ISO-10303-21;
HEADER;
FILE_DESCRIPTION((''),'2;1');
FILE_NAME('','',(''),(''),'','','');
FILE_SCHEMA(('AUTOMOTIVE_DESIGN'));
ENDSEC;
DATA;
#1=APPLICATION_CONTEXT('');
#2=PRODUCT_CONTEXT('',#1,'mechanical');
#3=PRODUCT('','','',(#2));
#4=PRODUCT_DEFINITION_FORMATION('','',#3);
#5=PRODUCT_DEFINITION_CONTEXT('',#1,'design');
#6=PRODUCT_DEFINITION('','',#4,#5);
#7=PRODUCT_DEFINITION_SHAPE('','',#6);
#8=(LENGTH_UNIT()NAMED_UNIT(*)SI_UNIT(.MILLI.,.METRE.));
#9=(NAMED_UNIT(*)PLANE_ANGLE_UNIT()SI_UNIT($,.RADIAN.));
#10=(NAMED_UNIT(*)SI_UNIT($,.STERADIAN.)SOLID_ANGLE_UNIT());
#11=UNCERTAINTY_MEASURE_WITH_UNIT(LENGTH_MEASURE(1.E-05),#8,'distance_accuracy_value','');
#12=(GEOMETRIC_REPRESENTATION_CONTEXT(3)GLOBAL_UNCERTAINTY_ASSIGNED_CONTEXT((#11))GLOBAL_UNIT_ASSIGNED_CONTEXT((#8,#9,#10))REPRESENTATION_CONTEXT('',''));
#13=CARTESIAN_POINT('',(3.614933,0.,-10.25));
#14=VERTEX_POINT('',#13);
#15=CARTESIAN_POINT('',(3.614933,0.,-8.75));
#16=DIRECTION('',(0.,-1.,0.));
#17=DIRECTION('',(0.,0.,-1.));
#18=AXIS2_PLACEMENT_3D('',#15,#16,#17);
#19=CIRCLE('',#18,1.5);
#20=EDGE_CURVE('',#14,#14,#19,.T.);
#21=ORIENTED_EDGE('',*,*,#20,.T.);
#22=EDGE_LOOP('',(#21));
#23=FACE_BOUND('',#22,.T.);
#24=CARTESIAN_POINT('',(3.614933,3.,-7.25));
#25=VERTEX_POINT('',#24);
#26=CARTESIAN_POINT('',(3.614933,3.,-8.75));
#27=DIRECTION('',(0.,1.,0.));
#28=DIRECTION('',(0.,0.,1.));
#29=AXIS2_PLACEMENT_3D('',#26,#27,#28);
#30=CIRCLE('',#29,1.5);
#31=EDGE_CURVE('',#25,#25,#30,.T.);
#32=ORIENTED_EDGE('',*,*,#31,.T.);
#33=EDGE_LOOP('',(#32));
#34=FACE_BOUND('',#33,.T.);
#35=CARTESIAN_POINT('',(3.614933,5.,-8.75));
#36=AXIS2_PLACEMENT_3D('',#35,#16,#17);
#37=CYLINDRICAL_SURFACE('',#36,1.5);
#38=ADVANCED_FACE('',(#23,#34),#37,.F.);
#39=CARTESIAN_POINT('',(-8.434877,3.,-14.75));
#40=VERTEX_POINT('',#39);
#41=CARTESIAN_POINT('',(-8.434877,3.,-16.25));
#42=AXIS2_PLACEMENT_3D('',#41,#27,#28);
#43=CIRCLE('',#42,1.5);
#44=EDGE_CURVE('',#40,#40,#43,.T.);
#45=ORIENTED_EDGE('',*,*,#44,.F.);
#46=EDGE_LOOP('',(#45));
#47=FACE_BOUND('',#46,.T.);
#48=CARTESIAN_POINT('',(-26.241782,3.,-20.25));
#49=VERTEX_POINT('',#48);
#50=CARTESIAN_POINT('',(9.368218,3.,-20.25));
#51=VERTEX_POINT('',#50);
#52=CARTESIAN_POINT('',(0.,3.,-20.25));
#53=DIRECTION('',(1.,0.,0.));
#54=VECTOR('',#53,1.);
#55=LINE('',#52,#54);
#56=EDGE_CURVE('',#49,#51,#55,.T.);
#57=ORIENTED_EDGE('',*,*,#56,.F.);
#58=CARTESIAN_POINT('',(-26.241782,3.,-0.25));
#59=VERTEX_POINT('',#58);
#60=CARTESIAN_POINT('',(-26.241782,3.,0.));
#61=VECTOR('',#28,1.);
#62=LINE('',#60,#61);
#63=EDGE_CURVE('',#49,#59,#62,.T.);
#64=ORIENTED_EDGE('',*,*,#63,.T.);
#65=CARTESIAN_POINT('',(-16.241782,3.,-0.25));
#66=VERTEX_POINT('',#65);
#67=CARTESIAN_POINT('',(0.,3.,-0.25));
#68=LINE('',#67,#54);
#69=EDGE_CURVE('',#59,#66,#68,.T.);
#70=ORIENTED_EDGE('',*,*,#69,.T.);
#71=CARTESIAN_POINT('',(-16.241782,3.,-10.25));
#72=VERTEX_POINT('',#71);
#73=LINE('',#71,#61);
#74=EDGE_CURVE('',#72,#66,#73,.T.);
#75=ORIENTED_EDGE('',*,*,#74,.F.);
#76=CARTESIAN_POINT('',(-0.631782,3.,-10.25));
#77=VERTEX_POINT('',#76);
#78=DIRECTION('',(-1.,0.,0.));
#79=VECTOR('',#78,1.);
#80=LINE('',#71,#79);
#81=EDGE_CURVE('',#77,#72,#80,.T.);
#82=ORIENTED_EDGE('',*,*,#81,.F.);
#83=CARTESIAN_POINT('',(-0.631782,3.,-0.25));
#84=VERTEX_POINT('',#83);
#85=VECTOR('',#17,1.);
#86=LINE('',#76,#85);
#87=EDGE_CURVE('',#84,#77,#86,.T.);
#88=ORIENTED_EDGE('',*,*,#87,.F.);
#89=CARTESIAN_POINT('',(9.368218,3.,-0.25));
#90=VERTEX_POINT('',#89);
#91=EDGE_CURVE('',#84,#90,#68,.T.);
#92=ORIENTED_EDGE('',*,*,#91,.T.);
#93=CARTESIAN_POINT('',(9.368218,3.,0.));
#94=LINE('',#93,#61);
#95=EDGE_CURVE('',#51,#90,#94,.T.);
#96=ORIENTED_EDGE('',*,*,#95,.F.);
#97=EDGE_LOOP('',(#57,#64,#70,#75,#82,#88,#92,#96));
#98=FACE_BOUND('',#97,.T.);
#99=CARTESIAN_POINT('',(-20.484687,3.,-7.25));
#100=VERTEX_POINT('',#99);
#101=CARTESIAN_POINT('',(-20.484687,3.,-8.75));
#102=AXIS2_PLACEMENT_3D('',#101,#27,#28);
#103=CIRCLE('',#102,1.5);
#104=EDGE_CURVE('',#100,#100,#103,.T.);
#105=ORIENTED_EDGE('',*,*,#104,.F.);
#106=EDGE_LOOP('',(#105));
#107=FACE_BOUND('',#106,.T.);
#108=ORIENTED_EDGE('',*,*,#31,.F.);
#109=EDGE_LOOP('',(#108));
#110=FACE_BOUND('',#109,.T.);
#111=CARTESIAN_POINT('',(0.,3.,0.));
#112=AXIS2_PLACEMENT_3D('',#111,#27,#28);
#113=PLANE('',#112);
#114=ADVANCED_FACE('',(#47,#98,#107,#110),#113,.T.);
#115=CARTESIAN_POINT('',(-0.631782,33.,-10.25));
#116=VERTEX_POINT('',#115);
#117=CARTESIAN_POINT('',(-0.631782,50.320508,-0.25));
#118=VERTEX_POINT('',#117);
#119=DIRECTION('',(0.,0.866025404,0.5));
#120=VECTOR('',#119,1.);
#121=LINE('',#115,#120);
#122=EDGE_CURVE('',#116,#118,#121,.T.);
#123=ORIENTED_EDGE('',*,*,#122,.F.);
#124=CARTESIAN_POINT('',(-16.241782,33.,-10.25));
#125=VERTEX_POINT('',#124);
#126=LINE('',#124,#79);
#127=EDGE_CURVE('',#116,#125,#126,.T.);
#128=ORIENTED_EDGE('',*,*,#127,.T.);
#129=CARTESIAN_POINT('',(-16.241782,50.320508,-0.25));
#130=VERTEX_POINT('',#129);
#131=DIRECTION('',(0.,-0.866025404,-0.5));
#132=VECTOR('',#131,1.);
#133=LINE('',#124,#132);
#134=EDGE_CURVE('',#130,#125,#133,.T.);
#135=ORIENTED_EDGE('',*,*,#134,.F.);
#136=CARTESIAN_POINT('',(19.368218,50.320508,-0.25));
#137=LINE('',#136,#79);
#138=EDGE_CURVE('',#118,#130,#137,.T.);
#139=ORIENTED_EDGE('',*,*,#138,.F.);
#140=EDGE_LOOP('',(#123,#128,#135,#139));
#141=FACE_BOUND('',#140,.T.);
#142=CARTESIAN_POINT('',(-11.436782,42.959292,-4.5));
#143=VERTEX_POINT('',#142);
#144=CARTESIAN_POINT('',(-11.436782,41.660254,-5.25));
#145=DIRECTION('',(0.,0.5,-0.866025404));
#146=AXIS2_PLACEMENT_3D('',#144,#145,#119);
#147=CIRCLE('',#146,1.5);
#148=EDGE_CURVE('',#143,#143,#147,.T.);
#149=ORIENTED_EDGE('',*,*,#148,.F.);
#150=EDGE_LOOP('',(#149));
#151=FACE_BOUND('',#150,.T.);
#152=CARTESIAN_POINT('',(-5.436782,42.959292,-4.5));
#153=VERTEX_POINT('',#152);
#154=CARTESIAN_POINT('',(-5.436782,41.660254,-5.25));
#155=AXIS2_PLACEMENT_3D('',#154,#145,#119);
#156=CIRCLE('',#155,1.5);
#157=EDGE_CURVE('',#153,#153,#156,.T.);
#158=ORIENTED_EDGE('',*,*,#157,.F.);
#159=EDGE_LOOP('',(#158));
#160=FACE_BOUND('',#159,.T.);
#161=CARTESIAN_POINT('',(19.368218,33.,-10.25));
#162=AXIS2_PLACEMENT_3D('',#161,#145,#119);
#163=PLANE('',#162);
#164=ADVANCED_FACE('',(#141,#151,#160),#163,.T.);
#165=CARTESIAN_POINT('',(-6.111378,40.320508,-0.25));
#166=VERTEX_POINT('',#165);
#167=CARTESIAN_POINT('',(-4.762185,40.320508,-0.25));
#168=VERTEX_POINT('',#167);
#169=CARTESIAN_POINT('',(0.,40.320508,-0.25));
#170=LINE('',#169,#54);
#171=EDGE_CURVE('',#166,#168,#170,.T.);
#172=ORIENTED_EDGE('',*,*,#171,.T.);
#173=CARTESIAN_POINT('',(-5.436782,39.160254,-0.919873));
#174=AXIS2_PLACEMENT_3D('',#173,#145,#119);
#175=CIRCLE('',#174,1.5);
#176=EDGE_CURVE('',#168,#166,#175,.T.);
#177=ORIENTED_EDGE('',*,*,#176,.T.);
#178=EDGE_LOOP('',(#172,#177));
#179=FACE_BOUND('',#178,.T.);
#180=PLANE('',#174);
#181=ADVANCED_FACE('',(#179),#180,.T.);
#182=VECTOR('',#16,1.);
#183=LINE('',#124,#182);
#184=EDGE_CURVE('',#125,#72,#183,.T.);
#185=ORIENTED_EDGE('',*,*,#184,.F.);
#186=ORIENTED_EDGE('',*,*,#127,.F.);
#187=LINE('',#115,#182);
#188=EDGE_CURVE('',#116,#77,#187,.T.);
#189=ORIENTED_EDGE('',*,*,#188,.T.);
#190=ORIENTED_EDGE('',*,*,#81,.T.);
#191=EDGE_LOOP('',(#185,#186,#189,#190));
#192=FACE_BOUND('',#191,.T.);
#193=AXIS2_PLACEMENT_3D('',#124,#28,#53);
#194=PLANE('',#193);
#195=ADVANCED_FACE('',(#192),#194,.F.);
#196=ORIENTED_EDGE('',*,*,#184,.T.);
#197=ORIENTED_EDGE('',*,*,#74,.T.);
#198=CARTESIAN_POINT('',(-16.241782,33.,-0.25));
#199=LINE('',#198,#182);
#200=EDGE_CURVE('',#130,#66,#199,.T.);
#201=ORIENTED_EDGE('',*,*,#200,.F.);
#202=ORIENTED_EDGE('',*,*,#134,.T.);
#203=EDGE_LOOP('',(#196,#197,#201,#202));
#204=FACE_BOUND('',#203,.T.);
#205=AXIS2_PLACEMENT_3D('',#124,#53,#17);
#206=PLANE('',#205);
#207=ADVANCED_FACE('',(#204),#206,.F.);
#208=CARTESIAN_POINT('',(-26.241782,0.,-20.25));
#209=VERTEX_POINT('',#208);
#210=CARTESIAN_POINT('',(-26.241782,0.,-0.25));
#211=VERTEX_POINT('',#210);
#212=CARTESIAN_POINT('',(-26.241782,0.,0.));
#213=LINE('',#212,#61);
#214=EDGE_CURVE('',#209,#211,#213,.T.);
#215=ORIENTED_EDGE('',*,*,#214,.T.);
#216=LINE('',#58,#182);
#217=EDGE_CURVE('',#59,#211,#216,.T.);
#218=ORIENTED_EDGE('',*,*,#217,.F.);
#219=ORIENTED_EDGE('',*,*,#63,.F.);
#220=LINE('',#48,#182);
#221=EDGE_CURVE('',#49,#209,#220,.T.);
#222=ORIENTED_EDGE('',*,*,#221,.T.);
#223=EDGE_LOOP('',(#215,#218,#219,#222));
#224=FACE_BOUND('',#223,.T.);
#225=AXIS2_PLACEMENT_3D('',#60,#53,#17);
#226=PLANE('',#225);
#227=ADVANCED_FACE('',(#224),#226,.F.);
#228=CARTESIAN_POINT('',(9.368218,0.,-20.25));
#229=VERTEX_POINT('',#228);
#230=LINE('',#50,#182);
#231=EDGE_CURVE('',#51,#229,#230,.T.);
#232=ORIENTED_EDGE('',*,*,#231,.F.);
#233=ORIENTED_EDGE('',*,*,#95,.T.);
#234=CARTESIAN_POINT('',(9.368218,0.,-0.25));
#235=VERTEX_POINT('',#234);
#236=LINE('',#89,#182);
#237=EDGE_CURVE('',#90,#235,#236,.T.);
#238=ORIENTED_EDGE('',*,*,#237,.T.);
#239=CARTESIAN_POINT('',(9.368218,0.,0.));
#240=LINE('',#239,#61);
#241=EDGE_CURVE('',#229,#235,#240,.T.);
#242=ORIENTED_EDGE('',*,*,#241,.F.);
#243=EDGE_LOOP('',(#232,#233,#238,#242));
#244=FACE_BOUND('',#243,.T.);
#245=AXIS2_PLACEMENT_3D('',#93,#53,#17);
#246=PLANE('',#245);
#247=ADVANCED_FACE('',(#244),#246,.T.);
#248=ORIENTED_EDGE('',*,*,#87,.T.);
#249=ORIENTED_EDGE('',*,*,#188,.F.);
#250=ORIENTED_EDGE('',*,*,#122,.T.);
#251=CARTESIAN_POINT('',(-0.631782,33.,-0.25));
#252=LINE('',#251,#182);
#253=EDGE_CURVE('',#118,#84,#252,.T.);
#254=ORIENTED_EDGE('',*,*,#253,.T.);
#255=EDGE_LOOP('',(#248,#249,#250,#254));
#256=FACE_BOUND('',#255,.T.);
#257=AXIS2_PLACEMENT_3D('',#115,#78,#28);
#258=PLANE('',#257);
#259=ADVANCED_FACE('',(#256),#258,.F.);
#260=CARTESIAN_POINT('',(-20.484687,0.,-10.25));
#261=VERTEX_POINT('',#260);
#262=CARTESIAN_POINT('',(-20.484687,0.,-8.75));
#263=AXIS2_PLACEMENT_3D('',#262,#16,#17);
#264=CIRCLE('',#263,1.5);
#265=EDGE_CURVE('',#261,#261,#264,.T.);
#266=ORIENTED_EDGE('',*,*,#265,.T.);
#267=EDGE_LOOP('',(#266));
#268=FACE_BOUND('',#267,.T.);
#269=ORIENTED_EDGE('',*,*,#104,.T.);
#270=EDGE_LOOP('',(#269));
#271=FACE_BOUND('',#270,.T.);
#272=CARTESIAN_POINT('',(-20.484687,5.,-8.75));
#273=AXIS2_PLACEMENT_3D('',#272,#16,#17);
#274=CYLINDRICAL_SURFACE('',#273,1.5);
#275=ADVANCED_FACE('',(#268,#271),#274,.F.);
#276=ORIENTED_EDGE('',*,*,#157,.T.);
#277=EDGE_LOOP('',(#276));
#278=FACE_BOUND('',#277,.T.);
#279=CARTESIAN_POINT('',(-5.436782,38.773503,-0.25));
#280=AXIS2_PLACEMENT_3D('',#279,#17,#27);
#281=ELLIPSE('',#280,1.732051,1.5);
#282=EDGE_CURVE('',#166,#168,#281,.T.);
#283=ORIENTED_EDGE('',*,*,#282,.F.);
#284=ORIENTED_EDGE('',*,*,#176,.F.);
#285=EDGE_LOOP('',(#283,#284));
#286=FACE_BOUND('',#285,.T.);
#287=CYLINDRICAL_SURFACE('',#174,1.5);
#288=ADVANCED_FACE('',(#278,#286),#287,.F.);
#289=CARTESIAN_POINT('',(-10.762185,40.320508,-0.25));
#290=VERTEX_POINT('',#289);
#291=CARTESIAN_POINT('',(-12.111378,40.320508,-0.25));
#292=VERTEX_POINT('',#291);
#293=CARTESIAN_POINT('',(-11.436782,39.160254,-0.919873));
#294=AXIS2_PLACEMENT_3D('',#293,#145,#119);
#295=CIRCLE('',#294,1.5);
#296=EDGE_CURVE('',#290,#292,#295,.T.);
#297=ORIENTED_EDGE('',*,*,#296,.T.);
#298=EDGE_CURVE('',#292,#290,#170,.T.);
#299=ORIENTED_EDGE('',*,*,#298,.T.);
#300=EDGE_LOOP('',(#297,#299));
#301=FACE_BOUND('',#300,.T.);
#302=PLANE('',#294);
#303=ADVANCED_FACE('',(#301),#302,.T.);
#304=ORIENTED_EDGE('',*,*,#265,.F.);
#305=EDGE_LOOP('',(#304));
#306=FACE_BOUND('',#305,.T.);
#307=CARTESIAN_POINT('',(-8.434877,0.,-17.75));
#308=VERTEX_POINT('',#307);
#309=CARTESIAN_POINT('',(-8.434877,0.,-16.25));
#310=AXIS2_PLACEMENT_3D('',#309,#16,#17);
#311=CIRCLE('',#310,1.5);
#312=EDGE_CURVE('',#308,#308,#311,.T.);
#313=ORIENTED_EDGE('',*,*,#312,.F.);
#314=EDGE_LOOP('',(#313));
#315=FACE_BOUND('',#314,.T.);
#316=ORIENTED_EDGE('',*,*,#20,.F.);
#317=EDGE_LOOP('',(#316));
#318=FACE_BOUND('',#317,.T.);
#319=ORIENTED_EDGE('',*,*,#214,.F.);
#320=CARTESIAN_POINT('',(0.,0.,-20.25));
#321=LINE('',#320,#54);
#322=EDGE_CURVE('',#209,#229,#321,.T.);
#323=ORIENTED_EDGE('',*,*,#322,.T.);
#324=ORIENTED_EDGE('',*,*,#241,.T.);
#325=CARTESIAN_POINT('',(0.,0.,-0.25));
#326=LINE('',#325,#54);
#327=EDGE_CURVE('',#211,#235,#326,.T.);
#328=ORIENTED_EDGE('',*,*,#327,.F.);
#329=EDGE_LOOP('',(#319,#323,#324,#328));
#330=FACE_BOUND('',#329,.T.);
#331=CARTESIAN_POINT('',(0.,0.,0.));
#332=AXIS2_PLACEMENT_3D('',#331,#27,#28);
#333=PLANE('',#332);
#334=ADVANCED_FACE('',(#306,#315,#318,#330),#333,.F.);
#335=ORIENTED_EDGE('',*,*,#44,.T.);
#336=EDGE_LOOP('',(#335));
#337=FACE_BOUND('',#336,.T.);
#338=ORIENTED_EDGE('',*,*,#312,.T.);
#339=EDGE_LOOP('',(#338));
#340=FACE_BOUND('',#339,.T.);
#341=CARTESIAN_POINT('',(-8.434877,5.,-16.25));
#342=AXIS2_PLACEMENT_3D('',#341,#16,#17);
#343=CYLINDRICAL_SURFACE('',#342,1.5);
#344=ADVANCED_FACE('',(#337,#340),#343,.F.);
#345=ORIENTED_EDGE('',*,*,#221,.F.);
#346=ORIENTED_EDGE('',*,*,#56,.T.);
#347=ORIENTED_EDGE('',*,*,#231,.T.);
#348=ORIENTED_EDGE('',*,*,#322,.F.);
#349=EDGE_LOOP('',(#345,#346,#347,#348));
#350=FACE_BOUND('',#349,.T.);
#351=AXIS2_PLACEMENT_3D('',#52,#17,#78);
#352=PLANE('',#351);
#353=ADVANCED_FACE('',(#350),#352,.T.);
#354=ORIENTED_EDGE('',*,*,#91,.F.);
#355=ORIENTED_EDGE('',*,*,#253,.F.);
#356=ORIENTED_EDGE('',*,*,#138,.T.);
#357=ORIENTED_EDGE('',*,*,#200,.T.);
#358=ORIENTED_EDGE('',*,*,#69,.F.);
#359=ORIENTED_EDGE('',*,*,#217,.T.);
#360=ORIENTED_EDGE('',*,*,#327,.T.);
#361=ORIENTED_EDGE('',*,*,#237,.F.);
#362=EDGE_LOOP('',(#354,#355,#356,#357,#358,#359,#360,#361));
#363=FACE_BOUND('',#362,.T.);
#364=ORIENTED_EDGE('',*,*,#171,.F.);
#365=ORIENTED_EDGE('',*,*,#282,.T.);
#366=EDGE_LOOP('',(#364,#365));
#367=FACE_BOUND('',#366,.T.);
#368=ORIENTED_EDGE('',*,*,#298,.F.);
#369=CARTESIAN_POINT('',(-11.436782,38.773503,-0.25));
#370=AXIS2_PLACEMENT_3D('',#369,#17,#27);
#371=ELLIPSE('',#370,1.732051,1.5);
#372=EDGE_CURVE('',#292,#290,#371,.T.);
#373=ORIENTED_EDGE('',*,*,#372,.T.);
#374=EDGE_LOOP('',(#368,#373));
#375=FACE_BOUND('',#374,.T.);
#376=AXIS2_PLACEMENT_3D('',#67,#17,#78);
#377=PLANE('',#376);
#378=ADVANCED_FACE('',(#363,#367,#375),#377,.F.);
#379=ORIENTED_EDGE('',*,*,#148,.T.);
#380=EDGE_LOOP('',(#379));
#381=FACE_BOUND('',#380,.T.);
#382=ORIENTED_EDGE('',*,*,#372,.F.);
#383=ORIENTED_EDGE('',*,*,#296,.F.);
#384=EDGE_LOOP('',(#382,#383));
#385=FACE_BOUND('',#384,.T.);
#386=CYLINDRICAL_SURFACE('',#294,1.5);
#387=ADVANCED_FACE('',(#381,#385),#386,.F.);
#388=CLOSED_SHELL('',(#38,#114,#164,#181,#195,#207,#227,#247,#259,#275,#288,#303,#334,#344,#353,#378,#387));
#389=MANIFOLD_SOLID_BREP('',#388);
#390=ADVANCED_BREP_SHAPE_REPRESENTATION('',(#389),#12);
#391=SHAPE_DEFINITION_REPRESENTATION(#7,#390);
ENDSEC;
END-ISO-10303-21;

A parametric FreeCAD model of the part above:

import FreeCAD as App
import Part
import Sketcher
Q = App.Units.Quantity


def add_polygon(sketch, points):
    """Adds a closed chain of lines whose ends are joined by coincident constraints."""
    first, n = sketch.GeometryCount, len(points)
    for a, b in zip(points, points[1:] + points[:1]):
        sketch.addGeometry(Part.LineSegment(App.Vector(*a, 0), App.Vector(*b, 0)), False)
    for i in range(n):
        sketch.addConstraint(Sketcher.Constraint("Coincident", first + i, 2, first + (i + 1) % n, 1))

doc = App.newDocument("Part")
body = doc.addObject("PartDesign::Body", "Body")

# Sketch on XZ plane
sketch1 = doc.addObject("Sketcher::SketchObject", "Sketch")
body.addObject(sketch1)
sketch1.AttachmentSupport = (doc.XZ_Plane, [""])
sketch1.MapMode = "FlatFace"
add_polygon(sketch1, [(-26, -20), (-26, 0), (9, 0), (9, -20)])  # lines 0-3
sketch1.addConstraint(Sketcher.Constraint("Vertical", 0))
sketch1.addConstraint(Sketcher.Constraint("Horizontal", 1))
sketch1.addConstraint(Sketcher.Constraint("Vertical", 2))
sketch1.addConstraint(Sketcher.Constraint("Horizontal", 3))
sketch1.addConstraint(Sketcher.Constraint("DistanceY", 0, 1, 0, 2, Q("20 mm")))
sketch1.addConstraint(Sketcher.Constraint("DistanceX", 1, 1, 1, 2, Q("35.61 mm")))
sketch1.addConstraint(Sketcher.Constraint("DistanceY", 0, 2, -1, 1, Q("0.25 mm")))
sketch1.addConstraint(Sketcher.Constraint("DistanceX", 0, 2, -1, 1, Q("26.241782 mm")))
pad1 = doc.addObject("PartDesign::Pad", "Pad")
body.addObject(pad1)
pad1.Profile = sketch1
pad1.Length = 3
pad1.Reversed = True

# Sketch on XZ plane
sketch2 = doc.addObject("Sketcher::SketchObject", "Sketch001")
body.addObject(sketch2)
sketch2.AttachmentSupport = (doc.XZ_Plane, [""])
sketch2.MapMode = "FlatFace"
sketch2.addGeometry(Part.Circle(App.Vector(-20.5, -8.8, 0), App.Vector(0, 0, 1), 1.5), False)
sketch2.addGeometry(Part.Circle(App.Vector(-8.4, -16.2, 0), App.Vector(0, 0, 1), 1.5), False)
sketch2.addGeometry(Part.Circle(App.Vector(3.6, -8.8, 0), App.Vector(0, 0, 1), 1.5), False)
sketch2.addConstraint(Sketcher.Constraint("Equal", 0, 1))
sketch2.addConstraint(Sketcher.Constraint("Equal", 1, 2))
sketch2.addConstraint(Sketcher.Constraint("Horizontal", 0, 3, 2, 3))
sketch2.addConstraint(Sketcher.Constraint("Diameter", 0, Q("3 mm")))
sketch2.addConstraint(Sketcher.Constraint("DistanceY", 1, 3, 0, 3, Q("7.5 mm")))
sketch2.addConstraint(Sketcher.Constraint("DistanceY", 0, 3, -1, 1, Q("8.75 mm")))
sketch2.addConstraint(Sketcher.Constraint("DistanceX", 0, 3, 1, 3, Q("12.04981 mm")))
sketch2.addConstraint(Sketcher.Constraint("DistanceX", 1, 3, 2, 3, Q("12.04981 mm")))
sketch2.addConstraint(Sketcher.Constraint("DistanceX", 0, 3, -1, 1, Q("20.484687 mm")))
pocket1 = doc.addObject("PartDesign::Pocket", "Pocket")
body.addObject(pocket1)
pocket1.Profile = sketch2
pocket1.Length = 5

# Sketch on XZ plane
sketch3 = doc.addObject("Sketcher::SketchObject", "Sketch002")
body.addObject(sketch3)
sketch3.AttachmentSupport = (doc.XZ_Plane, [""])
sketch3.MapMode = "FlatFace"
sketch3.AttachmentOffset = App.Placement(App.Vector(0, 0, -3), App.Rotation())
add_polygon(sketch3, [(-16, -10), (-16, 0), (-1, 0), (-1, -10)])  # lines 0-3
sketch3.addConstraint(Sketcher.Constraint("Vertical", 0))
sketch3.addConstraint(Sketcher.Constraint("Horizontal", 1))
sketch3.addConstraint(Sketcher.Constraint("Vertical", 2))
sketch3.addConstraint(Sketcher.Constraint("Horizontal", 3))
sketch3.addConstraint(Sketcher.Constraint("DistanceY", 0, 1, 0, 2, Q("10 mm")))
sketch3.addConstraint(Sketcher.Constraint("DistanceX", 1, 1, 1, 2, Q("15.61 mm")))
sketch3.addConstraint(Sketcher.Constraint("DistanceY", 0, 2, -1, 1, Q("0.25 mm")))
sketch3.addConstraint(Sketcher.Constraint("DistanceX", 0, 2, -1, 1, Q("16.241782 mm")))
pad2 = doc.addObject("PartDesign::Pad", "Pad001")
body.addObject(pad2)
pad2.Profile = sketch3
pad2.Length = 30
pad2.Reversed = True

# Sketch on YZ plane
sketch4 = doc.addObject("Sketcher::SketchObject", "Sketch003")
body.addObject(sketch4)
sketch4.AttachmentSupport = (doc.YZ_Plane, [""])
sketch4.MapMode = "FlatFace"
sketch4.AttachmentOffset = App.Placement(App.Vector(0, 0, -16.241782), App.Rotation())
add_polygon(sketch4, [(50, 0), (33, -10), (33, 0)])  # lines 0-2
sketch4.addConstraint(Sketcher.Constraint("Vertical", 1))
sketch4.addConstraint(Sketcher.Constraint("Horizontal", 2))
sketch4.addConstraint(Sketcher.Constraint("DistanceY", 1, 1, 1, 2, Q("10 mm")))
sketch4.addConstraint(Sketcher.Constraint("Angle", 0, Q("-150 deg")))
sketch4.addConstraint(Sketcher.Constraint("DistanceX", -1, 1, 0, 2, Q("33 mm")))
sketch4.addConstraint(Sketcher.Constraint("DistanceY", 0, 2, -1, 1, Q("10.25 mm")))
pad3 = doc.addObject("PartDesign::Pad", "Pad002")
body.addObject(pad3)
pad3.Profile = sketch4
pad3.Length = 15.61

# Sketch on an angled plane
sketch5 = doc.addObject("Sketcher::SketchObject", "Sketch004")
body.addObject(sketch5)
sketch5.Placement = App.Placement(App.Vector(0, 12.68838, -21.976919), App.Rotation(App.Vector(1, 0, 0), App.Vector(0, -0.866025404, -0.5), App.Vector(0, 0.5, -0.866025404), "ZXY"))
sketch5.addGeometry(Part.Circle(App.Vector(-11.4, -33.5, 0), App.Vector(0, 0, 1), 1.5), False)
sketch5.addGeometry(Part.Circle(App.Vector(-5.4, -33.5, 0), App.Vector(0, 0, 1), 1.5), False)
sketch5.addConstraint(Sketcher.Constraint("Equal", 0, 1))
sketch5.addConstraint(Sketcher.Constraint("Horizontal", 0, 3, 1, 3))
sketch5.addConstraint(Sketcher.Constraint("Diameter", 0, Q("3 mm")))
sketch5.addConstraint(Sketcher.Constraint("DistanceX", 0, 3, 1, 3, Q("6 mm")))
sketch5.addConstraint(Sketcher.Constraint("DistanceX", 0, 3, -1, 1, Q("11.436782 mm")))
sketch5.addConstraint(Sketcher.Constraint("DistanceY", 0, 3, -1, 1, Q("33.453838 mm")))
pocket2 = doc.addObject("PartDesign::Pocket", "Pocket001")
body.addObject(pocket2)
pocket2.Profile = sketch5
pocket2.Length = 5

doc.recompute()
